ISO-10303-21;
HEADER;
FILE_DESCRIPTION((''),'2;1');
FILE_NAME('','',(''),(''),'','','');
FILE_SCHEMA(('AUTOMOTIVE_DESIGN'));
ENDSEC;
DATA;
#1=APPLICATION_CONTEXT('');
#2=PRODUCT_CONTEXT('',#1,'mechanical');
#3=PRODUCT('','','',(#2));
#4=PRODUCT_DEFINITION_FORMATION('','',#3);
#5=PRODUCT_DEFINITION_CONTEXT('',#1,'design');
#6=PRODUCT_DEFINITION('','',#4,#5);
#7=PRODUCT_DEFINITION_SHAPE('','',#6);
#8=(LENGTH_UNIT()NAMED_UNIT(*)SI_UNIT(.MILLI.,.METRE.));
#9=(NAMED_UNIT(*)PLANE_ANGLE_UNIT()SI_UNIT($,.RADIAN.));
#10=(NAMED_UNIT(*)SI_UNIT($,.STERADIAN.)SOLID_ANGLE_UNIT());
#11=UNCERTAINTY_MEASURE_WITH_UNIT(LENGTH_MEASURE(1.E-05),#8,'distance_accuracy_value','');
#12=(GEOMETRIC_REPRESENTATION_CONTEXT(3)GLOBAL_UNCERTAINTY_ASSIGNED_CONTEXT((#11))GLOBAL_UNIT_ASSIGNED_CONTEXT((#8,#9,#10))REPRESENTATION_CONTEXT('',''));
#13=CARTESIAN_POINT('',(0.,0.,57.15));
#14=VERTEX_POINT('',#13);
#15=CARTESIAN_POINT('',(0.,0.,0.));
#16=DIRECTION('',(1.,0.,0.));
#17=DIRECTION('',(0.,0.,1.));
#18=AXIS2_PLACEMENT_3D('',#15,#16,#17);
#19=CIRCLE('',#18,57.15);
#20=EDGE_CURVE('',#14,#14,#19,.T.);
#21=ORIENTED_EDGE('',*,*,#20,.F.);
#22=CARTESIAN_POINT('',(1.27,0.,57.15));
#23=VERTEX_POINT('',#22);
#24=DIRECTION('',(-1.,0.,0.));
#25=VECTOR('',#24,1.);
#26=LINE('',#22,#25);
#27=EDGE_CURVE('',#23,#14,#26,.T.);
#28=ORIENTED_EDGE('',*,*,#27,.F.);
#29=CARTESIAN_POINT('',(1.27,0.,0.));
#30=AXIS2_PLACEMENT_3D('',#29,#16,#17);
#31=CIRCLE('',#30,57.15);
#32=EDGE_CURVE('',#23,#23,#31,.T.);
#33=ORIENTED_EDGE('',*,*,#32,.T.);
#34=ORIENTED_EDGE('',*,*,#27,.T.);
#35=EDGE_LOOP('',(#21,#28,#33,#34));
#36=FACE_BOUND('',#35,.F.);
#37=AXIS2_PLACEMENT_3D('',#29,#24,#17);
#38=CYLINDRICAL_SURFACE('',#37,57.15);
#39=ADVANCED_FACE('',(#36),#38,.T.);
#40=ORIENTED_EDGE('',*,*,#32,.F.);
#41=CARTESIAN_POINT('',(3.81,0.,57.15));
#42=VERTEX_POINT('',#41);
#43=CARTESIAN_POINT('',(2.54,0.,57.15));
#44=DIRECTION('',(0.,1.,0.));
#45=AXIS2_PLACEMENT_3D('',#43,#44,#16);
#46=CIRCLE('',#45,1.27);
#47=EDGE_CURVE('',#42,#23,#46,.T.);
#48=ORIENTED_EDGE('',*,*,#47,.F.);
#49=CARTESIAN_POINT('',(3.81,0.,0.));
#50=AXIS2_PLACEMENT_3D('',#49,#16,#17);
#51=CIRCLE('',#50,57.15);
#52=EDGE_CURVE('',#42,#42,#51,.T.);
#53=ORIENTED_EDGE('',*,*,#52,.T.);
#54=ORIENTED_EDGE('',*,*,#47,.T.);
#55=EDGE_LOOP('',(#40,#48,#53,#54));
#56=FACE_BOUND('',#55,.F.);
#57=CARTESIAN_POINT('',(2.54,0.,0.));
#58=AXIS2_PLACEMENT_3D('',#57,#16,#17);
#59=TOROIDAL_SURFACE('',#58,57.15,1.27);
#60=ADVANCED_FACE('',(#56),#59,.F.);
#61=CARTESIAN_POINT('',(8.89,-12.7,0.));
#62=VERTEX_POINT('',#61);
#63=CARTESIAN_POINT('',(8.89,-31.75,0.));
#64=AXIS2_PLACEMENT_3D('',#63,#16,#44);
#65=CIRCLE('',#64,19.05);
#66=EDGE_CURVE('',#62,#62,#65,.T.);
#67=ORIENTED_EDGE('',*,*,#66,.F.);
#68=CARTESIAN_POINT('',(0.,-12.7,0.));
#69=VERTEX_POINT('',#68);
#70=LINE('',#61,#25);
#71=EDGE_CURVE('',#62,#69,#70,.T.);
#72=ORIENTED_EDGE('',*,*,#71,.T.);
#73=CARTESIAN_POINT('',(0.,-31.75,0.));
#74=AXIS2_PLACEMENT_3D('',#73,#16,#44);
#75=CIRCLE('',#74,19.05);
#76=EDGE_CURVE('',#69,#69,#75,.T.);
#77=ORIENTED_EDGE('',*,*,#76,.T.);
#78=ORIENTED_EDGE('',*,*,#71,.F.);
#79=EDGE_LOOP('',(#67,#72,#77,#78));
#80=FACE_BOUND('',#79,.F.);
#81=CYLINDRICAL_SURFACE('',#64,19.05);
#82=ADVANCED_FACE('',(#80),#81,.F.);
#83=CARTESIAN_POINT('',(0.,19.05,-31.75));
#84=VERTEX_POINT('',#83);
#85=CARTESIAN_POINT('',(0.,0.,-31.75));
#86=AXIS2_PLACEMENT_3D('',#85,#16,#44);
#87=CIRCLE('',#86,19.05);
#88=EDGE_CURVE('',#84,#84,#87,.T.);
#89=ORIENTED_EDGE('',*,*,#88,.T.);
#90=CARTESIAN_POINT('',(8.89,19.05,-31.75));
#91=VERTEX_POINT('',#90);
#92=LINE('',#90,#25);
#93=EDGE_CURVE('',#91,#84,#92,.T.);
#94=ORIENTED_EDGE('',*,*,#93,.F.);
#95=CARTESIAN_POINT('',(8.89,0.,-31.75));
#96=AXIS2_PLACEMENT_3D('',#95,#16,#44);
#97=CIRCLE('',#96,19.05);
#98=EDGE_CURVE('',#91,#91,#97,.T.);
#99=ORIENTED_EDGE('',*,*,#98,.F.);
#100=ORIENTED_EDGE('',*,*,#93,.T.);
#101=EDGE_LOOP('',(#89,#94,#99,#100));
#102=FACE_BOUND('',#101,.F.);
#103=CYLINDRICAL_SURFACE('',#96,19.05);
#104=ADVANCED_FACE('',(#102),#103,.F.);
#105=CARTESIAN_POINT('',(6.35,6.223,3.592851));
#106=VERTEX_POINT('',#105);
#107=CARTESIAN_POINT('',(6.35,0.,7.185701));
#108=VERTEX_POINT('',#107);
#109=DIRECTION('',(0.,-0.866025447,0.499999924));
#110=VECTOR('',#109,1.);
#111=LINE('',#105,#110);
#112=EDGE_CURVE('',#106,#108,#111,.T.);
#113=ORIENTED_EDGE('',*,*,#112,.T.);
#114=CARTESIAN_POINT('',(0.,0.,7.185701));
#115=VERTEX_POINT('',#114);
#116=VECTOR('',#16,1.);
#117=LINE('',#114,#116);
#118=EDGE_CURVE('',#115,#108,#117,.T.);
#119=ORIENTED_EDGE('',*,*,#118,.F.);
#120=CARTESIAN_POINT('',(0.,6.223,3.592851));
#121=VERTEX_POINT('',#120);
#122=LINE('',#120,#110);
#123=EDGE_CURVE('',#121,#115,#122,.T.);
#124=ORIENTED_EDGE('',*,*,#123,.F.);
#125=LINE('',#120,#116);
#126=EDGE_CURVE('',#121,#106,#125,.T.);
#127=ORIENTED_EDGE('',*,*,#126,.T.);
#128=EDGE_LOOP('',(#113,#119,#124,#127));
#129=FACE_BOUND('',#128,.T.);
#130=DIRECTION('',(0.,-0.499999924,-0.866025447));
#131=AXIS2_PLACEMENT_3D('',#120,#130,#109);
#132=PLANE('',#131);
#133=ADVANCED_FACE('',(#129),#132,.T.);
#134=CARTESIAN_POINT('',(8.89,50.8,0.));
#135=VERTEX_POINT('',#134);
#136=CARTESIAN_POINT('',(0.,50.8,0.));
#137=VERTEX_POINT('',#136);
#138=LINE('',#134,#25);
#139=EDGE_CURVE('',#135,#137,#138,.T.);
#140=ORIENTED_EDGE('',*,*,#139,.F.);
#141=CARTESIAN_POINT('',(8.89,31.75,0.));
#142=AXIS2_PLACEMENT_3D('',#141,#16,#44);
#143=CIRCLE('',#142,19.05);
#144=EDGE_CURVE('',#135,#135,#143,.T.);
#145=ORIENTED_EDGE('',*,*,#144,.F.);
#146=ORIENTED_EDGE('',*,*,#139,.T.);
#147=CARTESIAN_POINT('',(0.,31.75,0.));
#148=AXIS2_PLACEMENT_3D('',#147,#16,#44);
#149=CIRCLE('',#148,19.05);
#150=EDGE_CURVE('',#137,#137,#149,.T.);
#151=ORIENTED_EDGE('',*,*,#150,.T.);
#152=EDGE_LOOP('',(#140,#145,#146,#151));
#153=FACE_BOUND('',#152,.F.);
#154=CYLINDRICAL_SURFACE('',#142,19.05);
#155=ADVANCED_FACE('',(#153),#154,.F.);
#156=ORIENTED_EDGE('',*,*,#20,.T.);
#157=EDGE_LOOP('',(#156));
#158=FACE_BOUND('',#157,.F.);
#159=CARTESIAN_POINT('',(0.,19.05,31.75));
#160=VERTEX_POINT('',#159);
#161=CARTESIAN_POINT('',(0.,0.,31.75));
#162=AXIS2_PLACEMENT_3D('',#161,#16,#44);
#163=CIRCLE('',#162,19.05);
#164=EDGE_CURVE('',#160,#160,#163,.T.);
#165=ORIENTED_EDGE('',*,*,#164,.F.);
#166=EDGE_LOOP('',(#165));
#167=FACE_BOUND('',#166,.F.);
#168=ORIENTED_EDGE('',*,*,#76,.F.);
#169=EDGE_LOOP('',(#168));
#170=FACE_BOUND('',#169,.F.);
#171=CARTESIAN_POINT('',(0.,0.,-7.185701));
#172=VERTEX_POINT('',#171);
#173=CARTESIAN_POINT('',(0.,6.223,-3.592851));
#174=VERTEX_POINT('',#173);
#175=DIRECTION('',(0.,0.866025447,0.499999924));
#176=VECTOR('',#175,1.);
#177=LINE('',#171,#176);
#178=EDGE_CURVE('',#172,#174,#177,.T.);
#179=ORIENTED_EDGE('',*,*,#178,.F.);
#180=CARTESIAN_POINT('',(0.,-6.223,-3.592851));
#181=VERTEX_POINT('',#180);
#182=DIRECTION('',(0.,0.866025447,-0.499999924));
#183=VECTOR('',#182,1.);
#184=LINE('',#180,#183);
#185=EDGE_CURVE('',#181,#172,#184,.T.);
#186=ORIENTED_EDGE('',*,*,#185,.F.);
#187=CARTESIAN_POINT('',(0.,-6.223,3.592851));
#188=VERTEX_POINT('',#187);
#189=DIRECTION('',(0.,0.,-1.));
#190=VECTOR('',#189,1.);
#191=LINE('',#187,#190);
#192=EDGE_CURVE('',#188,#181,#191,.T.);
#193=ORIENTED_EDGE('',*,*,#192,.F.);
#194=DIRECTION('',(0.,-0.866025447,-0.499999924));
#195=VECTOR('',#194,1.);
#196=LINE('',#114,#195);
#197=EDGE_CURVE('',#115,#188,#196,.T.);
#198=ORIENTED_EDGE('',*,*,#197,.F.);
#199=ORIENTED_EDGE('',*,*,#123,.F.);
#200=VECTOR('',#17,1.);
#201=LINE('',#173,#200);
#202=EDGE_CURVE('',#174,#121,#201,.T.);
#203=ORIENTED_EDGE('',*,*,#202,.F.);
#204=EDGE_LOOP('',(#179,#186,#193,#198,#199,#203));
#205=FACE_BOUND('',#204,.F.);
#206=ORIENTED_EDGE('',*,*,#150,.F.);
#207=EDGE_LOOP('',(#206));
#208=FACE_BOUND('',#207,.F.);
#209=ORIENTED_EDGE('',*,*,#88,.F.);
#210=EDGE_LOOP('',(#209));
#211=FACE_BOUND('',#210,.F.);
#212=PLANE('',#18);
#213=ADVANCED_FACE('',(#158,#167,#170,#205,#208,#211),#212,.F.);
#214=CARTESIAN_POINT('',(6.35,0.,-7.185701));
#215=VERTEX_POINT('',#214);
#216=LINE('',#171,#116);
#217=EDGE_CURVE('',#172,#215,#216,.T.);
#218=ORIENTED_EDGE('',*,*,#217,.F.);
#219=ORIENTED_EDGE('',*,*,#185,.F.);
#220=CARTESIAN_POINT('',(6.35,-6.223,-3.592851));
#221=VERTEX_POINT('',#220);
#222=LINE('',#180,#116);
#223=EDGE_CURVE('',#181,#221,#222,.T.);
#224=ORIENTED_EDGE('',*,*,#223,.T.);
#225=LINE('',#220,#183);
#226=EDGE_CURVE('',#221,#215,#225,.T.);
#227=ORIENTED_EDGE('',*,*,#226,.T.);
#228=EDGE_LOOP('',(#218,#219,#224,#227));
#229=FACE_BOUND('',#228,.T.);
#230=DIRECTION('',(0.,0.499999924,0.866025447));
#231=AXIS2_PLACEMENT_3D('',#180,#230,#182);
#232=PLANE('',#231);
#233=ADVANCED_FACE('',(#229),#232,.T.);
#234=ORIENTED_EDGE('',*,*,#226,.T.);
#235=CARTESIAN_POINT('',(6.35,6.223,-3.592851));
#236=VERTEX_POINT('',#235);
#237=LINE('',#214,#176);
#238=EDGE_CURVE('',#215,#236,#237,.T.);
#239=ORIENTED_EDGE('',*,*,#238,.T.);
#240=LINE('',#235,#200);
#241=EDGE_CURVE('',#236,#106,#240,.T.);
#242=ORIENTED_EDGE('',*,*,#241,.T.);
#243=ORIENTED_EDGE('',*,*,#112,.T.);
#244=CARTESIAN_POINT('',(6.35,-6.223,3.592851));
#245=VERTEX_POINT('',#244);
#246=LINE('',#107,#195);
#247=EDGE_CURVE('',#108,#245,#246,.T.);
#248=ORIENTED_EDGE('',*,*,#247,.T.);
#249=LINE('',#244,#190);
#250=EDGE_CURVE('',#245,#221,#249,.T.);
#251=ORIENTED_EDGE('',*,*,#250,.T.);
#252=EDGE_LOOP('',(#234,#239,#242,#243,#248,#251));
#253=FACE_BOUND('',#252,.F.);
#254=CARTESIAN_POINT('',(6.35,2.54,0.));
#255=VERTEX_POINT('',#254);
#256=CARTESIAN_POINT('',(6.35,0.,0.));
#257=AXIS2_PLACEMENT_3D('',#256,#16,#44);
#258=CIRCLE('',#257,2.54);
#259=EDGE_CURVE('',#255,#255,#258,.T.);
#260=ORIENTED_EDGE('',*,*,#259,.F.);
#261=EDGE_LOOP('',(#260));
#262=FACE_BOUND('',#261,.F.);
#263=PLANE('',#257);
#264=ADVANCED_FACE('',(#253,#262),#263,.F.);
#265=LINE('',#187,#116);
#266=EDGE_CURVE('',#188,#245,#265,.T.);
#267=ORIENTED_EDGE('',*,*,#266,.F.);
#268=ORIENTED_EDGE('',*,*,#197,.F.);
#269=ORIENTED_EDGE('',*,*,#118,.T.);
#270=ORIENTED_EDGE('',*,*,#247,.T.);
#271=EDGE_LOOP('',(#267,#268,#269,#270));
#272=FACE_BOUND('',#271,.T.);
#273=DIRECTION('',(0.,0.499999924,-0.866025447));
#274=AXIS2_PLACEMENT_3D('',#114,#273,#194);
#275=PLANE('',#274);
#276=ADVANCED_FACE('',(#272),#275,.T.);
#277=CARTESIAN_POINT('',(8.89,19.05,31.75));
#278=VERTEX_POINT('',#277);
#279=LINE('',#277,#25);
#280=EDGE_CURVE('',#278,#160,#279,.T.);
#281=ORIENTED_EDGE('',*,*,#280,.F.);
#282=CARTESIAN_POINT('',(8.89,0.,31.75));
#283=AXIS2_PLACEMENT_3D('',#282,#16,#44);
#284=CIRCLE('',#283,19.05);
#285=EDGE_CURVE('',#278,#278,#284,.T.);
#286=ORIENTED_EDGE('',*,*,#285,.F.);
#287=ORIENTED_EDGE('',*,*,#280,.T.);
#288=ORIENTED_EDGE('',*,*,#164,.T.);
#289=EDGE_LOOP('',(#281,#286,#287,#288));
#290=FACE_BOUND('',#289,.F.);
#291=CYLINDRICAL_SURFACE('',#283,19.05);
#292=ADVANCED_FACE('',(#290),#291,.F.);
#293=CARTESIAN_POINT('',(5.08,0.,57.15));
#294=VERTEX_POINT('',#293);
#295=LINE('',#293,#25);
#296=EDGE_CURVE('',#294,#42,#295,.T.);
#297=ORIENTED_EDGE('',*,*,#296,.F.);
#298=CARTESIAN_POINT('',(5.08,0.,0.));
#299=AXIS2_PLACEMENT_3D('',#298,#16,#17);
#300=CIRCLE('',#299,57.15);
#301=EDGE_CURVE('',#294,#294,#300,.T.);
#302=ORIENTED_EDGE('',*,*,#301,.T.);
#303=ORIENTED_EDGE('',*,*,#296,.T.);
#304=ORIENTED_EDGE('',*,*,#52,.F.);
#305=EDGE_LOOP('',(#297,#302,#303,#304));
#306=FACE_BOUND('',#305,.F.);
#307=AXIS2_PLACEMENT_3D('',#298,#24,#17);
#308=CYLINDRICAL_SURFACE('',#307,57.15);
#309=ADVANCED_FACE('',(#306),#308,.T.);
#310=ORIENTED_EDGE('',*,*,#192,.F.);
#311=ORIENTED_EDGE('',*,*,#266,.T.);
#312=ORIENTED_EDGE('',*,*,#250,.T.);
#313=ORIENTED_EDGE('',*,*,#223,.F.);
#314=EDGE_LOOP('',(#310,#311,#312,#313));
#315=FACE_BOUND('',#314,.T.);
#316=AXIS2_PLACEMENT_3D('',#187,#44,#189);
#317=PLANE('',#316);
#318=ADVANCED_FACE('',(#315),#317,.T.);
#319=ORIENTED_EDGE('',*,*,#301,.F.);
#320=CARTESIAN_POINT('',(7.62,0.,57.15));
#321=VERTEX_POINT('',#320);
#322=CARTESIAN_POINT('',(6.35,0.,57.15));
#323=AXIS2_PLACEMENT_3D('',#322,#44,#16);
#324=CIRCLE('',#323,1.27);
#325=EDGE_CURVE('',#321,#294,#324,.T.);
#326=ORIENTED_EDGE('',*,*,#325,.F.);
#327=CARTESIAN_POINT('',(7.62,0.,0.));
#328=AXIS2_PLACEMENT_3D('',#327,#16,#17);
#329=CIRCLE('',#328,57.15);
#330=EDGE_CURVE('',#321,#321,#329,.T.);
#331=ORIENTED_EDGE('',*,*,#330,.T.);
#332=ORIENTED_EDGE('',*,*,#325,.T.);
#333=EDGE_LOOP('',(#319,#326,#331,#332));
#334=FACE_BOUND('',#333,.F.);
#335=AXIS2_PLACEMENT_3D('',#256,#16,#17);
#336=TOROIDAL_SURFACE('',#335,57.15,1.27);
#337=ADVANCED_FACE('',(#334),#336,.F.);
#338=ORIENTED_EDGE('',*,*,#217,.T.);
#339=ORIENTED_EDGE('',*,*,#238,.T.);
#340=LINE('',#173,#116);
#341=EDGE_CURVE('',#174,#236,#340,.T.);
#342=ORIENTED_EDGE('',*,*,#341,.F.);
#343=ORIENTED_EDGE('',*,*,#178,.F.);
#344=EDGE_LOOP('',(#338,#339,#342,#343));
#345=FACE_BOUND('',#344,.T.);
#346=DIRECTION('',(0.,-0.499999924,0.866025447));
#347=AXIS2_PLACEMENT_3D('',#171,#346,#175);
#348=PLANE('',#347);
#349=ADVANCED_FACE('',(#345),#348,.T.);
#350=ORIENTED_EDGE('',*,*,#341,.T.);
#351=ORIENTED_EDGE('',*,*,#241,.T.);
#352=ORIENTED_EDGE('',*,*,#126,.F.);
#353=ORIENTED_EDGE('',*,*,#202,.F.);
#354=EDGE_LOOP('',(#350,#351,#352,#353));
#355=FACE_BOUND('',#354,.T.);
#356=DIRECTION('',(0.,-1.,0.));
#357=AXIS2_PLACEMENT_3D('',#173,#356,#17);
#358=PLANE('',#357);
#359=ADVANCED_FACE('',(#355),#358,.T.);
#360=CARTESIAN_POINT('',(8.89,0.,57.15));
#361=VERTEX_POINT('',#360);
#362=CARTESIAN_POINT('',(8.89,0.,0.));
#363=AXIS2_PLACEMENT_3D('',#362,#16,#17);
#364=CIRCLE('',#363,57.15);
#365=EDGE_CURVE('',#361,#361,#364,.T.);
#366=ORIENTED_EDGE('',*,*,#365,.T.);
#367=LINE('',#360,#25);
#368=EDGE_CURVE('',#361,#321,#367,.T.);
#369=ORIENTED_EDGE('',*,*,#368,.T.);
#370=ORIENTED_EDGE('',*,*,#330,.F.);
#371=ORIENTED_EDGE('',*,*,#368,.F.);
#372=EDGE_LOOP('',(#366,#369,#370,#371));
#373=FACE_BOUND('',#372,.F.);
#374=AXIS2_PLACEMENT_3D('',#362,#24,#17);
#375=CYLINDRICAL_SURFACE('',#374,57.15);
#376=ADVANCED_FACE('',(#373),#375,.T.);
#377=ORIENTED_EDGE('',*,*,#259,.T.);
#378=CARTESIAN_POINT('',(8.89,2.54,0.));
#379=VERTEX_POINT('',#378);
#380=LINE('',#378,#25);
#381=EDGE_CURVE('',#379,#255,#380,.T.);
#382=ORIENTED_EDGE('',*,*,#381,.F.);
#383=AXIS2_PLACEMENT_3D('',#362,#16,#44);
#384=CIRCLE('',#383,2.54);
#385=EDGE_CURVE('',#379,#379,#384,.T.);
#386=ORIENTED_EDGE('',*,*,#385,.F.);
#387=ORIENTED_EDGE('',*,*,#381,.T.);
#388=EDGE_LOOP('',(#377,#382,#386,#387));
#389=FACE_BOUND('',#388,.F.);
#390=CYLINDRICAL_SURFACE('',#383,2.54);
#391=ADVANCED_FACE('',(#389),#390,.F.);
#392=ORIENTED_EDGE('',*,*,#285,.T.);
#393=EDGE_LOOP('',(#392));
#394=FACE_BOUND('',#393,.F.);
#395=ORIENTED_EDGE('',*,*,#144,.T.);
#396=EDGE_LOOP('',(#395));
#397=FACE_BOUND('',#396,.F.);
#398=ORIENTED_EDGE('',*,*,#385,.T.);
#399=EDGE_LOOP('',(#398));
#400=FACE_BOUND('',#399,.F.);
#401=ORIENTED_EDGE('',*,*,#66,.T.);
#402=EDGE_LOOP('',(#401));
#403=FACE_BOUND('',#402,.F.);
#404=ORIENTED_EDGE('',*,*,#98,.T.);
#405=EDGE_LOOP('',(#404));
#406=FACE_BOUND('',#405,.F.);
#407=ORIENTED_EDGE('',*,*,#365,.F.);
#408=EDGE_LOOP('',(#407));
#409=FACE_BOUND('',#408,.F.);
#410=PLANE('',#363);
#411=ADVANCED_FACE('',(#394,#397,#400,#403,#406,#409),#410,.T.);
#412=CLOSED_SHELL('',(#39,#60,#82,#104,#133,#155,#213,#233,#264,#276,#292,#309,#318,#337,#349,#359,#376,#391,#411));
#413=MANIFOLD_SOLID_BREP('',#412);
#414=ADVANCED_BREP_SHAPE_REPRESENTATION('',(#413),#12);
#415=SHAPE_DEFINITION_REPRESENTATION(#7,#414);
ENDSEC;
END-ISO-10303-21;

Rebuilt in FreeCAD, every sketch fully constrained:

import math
import FreeCAD as App
import Part
import Sketcher
Q = App.Units.Quantity

doc = App.newDocument("Part")
body = doc.addObject("PartDesign::Body", "Body")

# Sketch on XZ plane
sketch1 = doc.addObject("Sketcher::SketchObject", "Sketch")
body.addObject(sketch1)
sketch1.AttachmentSupport = (doc.XZ_Plane, [""])
sketch1.MapMode = "FlatFace"
sketch1.addGeometry(Part.LineSegment(App.Vector(0, 57.1, 0), App.Vector(0, 0, 0)), False)
sketch1.addGeometry(Part.LineSegment(App.Vector(0, 0, 0), App.Vector(8.9, 0, 0)), False)
sketch1.addGeometry(Part.LineSegment(App.Vector(8.9, 0, 0), App.Vector(8.9, 57.1, 0)), False)
sketch1.addGeometry(Part.LineSegment(App.Vector(8.9, 57.1, 0), App.Vector(7.6, 57.1, 0)), False)
sketch1.addGeometry(Part.ArcOfCircle(Part.Circle(App.Vector(6.3, 57.1, 0), App.Vector(0, 0, 1), 1.3), math.radians(180), math.radians(360)), False)
sketch1.addGeometry(Part.LineSegment(App.Vector(5.1, 57.1, 0), App.Vector(3.8, 57.1, 0)), False)
sketch1.addGeometry(Part.ArcOfCircle(Part.Circle(App.Vector(2.5, 57.1, 0), App.Vector(0, 0, 1), 1.3), math.radians(180), math.radians(360)), False)
sketch1.addGeometry(Part.LineSegment(App.Vector(1.3, 57.1, 0), App.Vector(0, 57.1, 0)), False)
sketch1.addConstraint(Sketcher.Constraint("Coincident", 0, 2, 1, 1))
sketch1.addConstraint(Sketcher.Constraint("Coincident", 1, 2, 2, 1))
sketch1.addConstraint(Sketcher.Constraint("Coincident", 2, 2, 3, 1))
sketch1.addConstraint(Sketcher.Constraint("Coincident", 3, 2, 4, 2))
sketch1.addConstraint(Sketcher.Constraint("Coincident", 4, 1, 5, 1))
sketch1.addConstraint(Sketcher.Constraint("Coincident", 5, 2, 6, 2))
sketch1.addConstraint(Sketcher.Constraint("Coincident", 6, 1, 7, 1))
sketch1.addConstraint(Sketcher.Constraint("Coincident", 7, 2, 0, 1))
sketch1.addConstraint(Sketcher.Constraint("Vertical", 0))
sketch1.addConstraint(Sketcher.Constraint("Horizontal", 1))
sketch1.addConstraint(Sketcher.Constraint("Vertical", 2))
sketch1.addConstraint(Sketcher.Constraint("Horizontal", 3))
sketch1.addConstraint(Sketcher.Constraint("Horizontal", 5))
sketch1.addConstraint(Sketcher.Constraint("Horizontal", 7))
sketch1.addConstraint(Sketcher.Constraint("Coincident", 0, 2, -1, 1))
sketch1.addConstraint(Sketcher.Constraint("Equal", 4, 6))
sketch1.addConstraint(Sketcher.Constraint("Horizontal", 4, 3, 6, 3))
sketch1.addConstraint(Sketcher.Constraint("Horizontal", 6, 3, 2, 2))
sketch1.addConstraint(Sketcher.Constraint("Horizontal", 3, 2, 4, 1))
sketch1.addConstraint(Sketcher.Constraint("Horizontal", 5, 2, 6, 1))
sketch1.addConstraint(Sketcher.Constraint("Equal", 3, 5))
sketch1.addConstraint(Sketcher.Constraint("Equal", 5, 7))
sketch1.addConstraint(Sketcher.Constraint("Radius", 4, Q("0.05 in")))
sketch1.addConstraint(Sketcher.Constraint("DistanceX", 1, 1, 1, 2, Q("0.35 in")))
sketch1.addConstraint(Sketcher.Constraint("DistanceY", 0, 2, 0, 1, Q("2.25 in")))
revolution = doc.addObject("PartDesign::Revolution", "Revolution")
body.addObject(revolution)
revolution.Profile = sketch1
revolution.ReferenceAxis = (sketch1, ["H_Axis"])
revolution.Angle = 360

# Sketch on YZ plane
sketch2 = doc.addObject("Sketcher::SketchObject", "Sketch001")
body.addObject(sketch2)
sketch2.AttachmentSupport = (doc.YZ_Plane, [""])
sketch2.MapMode = "FlatFace"
sketch2.AttachmentOffset = App.Placement(App.Vector(0, 0, 0.35 * 25.4), App.Rotation())
sketch2.addGeometry(Part.Circle(App.Vector(-32, 0, 0), App.Vector(0, 0, 1), 19), False)
sketch2.addGeometry(Part.Circle(App.Vector(0, 32, 0), App.Vector(0, 0, 1), 19), False)
sketch2.addGeometry(Part.Circle(App.Vector(32, 0, 0), App.Vector(0, 0, 1), 19), False)
sketch2.addGeometry(Part.Circle(App.Vector(0, -32, 0), App.Vector(0, 0, 1), 19), False)
sketch2.addConstraint(Sketcher.Constraint("Equal", 0, 1))
sketch2.addConstraint(Sketcher.Constraint("Equal", 1, 2))
sketch2.addConstraint(Sketcher.Constraint("Equal", 2, 3))
sketch2.addConstraint(Sketcher.Constraint("Symmetric", 0, 3, 2, 3, -1, 1))
sketch2.addConstraint(Sketcher.Constraint("Symmetric", 1, 3, 3, 3, -1, 1))
sketch2.addConstraint(Sketcher.Constraint("PointOnObject", 0, 3, -1))
sketch2.addConstraint(Sketcher.Constraint("PointOnObject", 1, 3, -2))
sketch2.addConstraint(Sketcher.Constraint("Diameter", 0, Q("1.5 in")))
sketch2.addConstraint(Sketcher.Constraint("DistanceX", 0, 3, 2, 3, Q("2.5 in")))
sketch2.addConstraint(Sketcher.Constraint("DistanceY", 3, 3, 1, 3, Q("2.5 in")))
pocket1 = doc.addObject("PartDesign::Pocket", "Pocket")
body.addObject(pocket1)
pocket1.Profile = sketch2
pocket1.Length = Q("0.75 in")

# Sketch on YZ plane
sketch3 = doc.addObject("Sketcher::SketchObject", "Sketch002")
body.addObject(sketch3)
sketch3.AttachmentSupport = (doc.YZ_Plane, [""])
sketch3.MapMode = "FlatFace"
sketch3.addGeometry(Part.LineSegment(App.Vector(-6, 4, 0), App.Vector(-6, -4, 0)), False)
sketch3.addGeometry(Part.LineSegment(App.Vector(-6, -4, 0), App.Vector(0, -7, 0)), False)
sketch3.addGeometry(Part.LineSegment(App.Vector(0, -7, 0), App.Vector(6, -4, 0)), False)
sketch3.addGeometry(Part.LineSegment(App.Vector(6, -4, 0), App.Vector(6, 4, 0)), False)
sketch3.addGeometry(Part.LineSegment(App.Vector(6, 4, 0), App.Vector(0, 7, 0)), False)
sketch3.addGeometry(Part.LineSegment(App.Vector(0, 7, 0), App.Vector(-6, 4, 0)), False)
sketch3.addConstraint(Sketcher.Constraint("Coincident", 0, 2, 1, 1))
sketch3.addConstraint(Sketcher.Constraint("Coincident", 1, 2, 2, 1))
sketch3.addConstraint(Sketcher.Constraint("Coincident", 2, 2, 3, 1))
sketch3.addConstraint(Sketcher.Constraint("Coincident", 3, 2, 4, 1))
sketch3.addConstraint(Sketcher.Constraint("Coincident", 4, 2, 5, 1))
sketch3.addConstraint(Sketcher.Constraint("Coincident", 5, 2, 0, 1))
sketch3.addConstraint(Sketcher.Constraint("Vertical", 0))
sketch3.addConstraint(Sketcher.Constraint("Vertical", 3))
sketch3.addConstraint(Sketcher.Constraint("Symmetric", 0, 2, 3, 2, -1, 1))
sketch3.addConstraint(Sketcher.Constraint("Symmetric", 1, 2, 4, 2, -1, 1))
sketch3.addConstraint(Sketcher.Constraint("PointOnObject", 1, 2, -2))
sketch3.addConstraint(Sketcher.Constraint("Parallel", 2, 5))
sketch3.addConstraint(Sketcher.Constraint("Horizontal", 0, 2, 2, 2))
sketch3.addConstraint(Sketcher.Constraint("Angle", 1, Q("-29.999995 deg")))
sketch3.addConstraint(Sketcher.Constraint("DistanceX", 0, 2, 2, 2, Q("0.49 in")))
sketch3.addConstraint(Sketcher.Constraint("DistanceY", 1, 2, -1, 1, Q("7.185701 mm")))
pocket2 = doc.addObject("PartDesign::Pocket", "Pocket001")
body.addObject(pocket2)
pocket2.Profile = sketch3
pocket2.Length = Q("0.25 in")
pocket2.Reversed = True

# Sketch on YZ plane
sketch4 = doc.addObject("Sketcher::SketchObject", "Sketch003")
body.addObject(sketch4)
sketch4.AttachmentSupport = (doc.YZ_Plane, [""])
sketch4.MapMode = "FlatFace"
sketch4.AttachmentOffset = App.Placement(App.Vector(0, 0, 0.35 * 25.4), App.Rotation())
sketch4.addGeometry(Part.Circle(App.Vector(0, 0, 0), App.Vector(0, 0, 1), 2.5), False)
sketch4.addConstraint(Sketcher.Constraint("Coincident", 0, 3, -1, 1))
sketch4.addConstraint(Sketcher.Constraint("Diameter", 0, Q("0.2 in")))
pocket3 = doc.addObject("PartDesign::Pocket", "Pocket002")
body.addObject(pocket3)
pocket3.Profile = sketch4
pocket3.Type = "ThroughAll"

doc.recompute()
